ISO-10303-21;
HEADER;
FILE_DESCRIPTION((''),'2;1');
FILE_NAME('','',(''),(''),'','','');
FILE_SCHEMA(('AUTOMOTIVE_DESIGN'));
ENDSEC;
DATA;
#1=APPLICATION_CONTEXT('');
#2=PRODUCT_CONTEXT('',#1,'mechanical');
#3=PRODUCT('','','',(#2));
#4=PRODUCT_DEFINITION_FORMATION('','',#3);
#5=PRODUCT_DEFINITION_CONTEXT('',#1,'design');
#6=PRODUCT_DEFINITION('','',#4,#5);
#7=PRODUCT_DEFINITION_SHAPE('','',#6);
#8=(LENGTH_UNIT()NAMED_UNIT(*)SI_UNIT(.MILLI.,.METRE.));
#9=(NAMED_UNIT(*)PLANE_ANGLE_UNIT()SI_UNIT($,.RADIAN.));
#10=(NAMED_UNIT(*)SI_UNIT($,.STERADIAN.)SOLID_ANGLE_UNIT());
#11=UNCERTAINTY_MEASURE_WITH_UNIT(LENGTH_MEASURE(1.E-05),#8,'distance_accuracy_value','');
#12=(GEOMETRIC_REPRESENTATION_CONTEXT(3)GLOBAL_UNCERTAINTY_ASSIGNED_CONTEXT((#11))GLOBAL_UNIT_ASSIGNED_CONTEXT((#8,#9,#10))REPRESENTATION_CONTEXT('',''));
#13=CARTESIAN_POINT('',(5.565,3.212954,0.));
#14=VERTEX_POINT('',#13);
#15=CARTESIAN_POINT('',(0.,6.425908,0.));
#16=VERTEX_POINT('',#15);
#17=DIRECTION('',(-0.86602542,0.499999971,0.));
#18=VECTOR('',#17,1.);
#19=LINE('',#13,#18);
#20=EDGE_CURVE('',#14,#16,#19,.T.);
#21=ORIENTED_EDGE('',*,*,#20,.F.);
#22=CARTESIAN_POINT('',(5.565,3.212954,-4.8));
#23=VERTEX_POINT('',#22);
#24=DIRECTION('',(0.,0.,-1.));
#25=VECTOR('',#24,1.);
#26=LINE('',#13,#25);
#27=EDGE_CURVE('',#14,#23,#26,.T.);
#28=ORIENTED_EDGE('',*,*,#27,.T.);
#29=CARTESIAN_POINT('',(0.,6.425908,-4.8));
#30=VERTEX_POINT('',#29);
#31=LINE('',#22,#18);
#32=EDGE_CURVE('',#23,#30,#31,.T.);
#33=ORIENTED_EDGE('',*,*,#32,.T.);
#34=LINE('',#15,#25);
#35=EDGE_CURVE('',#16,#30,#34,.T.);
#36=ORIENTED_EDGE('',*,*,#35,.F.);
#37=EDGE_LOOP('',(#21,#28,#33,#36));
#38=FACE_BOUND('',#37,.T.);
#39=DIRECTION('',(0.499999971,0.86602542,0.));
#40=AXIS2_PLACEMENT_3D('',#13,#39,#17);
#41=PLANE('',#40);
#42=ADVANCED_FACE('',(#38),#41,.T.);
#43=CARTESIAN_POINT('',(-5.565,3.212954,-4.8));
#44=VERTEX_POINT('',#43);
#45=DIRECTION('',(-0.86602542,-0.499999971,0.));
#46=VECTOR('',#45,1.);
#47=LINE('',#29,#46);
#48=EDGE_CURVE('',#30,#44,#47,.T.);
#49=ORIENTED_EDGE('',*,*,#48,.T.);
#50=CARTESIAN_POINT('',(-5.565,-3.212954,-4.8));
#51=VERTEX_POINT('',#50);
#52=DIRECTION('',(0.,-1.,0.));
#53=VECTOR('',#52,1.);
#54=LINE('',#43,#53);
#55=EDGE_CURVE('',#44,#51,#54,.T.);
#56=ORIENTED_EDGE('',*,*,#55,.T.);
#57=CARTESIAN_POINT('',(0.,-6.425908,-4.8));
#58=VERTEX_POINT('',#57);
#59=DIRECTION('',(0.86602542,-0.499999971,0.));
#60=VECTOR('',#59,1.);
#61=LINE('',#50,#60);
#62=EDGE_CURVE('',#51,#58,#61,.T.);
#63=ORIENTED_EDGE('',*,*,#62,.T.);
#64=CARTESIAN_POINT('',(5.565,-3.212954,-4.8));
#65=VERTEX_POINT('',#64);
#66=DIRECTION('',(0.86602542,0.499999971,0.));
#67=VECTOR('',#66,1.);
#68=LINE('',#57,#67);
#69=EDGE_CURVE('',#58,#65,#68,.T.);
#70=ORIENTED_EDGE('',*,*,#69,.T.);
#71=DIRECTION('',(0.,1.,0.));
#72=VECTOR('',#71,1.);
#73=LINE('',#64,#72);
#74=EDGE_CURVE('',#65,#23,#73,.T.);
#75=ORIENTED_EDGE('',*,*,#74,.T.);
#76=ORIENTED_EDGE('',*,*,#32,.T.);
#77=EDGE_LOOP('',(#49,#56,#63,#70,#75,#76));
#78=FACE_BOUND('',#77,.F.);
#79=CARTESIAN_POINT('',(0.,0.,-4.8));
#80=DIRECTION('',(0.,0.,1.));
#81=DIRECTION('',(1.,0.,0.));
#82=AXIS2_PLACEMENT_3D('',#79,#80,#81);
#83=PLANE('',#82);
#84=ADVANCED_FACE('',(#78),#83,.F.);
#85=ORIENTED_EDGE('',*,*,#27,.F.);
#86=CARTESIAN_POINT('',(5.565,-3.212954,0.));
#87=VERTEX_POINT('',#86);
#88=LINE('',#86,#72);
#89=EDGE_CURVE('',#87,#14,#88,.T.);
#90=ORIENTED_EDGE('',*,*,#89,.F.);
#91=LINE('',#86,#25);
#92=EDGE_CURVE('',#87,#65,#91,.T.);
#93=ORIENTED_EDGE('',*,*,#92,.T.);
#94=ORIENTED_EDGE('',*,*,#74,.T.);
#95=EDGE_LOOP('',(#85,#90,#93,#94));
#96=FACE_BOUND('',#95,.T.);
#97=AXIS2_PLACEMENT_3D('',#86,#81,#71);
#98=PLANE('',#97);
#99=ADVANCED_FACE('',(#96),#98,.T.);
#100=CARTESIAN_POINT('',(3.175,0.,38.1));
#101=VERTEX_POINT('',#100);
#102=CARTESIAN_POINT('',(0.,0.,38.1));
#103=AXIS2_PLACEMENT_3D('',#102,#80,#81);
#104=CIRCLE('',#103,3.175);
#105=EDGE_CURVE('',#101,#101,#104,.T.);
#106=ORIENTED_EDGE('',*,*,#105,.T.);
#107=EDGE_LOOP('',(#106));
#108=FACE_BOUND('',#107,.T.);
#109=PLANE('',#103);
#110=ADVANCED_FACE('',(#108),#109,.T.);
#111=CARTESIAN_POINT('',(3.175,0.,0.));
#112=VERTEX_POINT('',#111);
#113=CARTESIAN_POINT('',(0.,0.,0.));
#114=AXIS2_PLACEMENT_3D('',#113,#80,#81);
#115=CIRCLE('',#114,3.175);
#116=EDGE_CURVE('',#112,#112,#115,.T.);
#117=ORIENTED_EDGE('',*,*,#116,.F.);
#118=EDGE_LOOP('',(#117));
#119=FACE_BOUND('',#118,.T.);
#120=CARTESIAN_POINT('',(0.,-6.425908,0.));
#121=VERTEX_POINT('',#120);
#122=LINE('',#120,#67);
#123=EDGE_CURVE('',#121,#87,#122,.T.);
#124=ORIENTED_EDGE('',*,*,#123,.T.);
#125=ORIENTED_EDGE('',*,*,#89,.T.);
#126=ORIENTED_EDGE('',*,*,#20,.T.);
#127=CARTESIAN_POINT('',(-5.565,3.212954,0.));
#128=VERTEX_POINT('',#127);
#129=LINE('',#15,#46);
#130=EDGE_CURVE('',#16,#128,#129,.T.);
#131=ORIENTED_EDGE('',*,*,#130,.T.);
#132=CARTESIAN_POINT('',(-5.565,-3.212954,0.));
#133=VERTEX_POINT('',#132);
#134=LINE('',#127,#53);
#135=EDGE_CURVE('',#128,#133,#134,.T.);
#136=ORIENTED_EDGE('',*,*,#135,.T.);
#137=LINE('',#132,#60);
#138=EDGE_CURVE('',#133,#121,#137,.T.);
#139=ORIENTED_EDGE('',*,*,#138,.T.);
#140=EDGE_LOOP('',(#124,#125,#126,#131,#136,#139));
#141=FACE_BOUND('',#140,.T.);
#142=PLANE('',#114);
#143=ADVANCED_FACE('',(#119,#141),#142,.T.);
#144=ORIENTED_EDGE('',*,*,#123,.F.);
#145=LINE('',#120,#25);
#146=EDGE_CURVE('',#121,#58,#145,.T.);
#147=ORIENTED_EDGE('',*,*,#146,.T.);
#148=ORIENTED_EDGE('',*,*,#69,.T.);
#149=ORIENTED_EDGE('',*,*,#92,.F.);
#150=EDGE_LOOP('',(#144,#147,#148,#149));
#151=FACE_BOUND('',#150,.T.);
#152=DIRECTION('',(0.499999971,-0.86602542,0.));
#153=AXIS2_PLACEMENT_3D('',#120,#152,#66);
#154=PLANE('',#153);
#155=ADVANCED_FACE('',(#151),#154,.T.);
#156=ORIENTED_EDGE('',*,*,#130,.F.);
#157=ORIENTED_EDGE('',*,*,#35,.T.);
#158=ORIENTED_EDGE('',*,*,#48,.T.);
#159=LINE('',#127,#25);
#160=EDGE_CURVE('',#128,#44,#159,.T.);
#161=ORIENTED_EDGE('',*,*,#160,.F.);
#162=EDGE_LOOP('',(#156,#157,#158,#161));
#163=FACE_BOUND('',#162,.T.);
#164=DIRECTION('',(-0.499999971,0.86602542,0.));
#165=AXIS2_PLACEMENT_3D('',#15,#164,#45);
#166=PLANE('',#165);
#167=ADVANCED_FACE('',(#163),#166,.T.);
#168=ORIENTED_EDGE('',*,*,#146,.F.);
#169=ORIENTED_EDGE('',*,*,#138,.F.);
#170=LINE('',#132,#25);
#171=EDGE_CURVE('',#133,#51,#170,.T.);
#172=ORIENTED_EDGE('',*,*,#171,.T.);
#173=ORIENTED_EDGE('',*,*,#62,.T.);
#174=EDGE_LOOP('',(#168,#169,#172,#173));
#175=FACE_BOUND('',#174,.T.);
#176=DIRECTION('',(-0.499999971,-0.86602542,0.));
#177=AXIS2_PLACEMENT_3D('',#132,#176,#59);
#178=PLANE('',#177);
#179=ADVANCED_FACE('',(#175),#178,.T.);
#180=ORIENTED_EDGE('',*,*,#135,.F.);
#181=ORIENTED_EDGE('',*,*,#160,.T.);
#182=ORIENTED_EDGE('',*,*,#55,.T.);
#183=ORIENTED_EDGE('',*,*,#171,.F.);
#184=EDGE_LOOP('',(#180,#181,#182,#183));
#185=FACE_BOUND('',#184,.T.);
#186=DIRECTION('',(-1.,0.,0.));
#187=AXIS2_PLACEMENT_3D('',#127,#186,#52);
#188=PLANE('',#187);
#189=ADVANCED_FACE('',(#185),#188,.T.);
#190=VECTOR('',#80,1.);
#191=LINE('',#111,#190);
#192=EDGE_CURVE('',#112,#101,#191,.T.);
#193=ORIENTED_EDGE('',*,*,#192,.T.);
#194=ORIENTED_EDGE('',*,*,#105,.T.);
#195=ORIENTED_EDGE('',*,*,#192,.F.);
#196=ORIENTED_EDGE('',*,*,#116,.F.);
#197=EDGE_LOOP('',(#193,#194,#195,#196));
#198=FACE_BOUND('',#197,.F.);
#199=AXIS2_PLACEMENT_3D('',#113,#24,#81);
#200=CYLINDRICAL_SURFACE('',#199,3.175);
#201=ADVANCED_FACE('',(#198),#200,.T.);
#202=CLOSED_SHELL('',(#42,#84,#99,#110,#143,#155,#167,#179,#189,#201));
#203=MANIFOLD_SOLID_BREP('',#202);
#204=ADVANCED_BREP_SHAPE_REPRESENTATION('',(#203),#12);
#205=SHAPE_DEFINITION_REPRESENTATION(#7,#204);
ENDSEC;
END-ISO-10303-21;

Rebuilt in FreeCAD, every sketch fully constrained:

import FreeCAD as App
import Part
import Sketcher
Q = App.Units.Quantity

doc = App.newDocument("Part")
body = doc.addObject("PartDesign::Body", "Body")

# Sketch on XY plane
sketch1 = body.newObject("Sketcher::SketchObject", "Sketch")
sketch1.AttachmentSupport = (doc.getObject("XY_Plane"), [""])
sketch1.MapMode = "FlatFace"
sketch1.addGeometry(Part.Circle(App.Vector(0, 0, 0), App.Vector(0, 0, 1), 3.2), False)
sketch1.addConstraint([
    Sketcher.Constraint("Coincident", 0, 3, -1, 1),
    Sketcher.Constraint("Diameter", 0, Q("0.25 in")),
])
pad1 = body.newObject("PartDesign::Pad", "Pad")
pad1.Profile = sketch1
pad1.Length = Q("1.5 in")

# Sketch on XY plane
sketch2 = body.newObject("Sketcher::SketchObject", "Sketch001")
sketch2.AttachmentSupport = (doc.getObject("XY_Plane"), [""])
sketch2.MapMode = "FlatFace"
sketch2.addGeometry([
    Part.LineSegment(App.Vector(0, 6, 0), App.Vector(-6, 3, 0)),  # 0
    Part.LineSegment(App.Vector(-6, 3, 0), App.Vector(-6, -3, 0)),  # 1
    Part.LineSegment(App.Vector(-6, -3, 0), App.Vector(0, -6, 0)),  # 2
    Part.LineSegment(App.Vector(0, -6, 0), App.Vector(6, -3, 0)),  # 3
    Part.LineSegment(App.Vector(6, -3, 0), App.Vector(6, 3, 0)),  # 4
    Part.LineSegment(App.Vector(6, 3, 0), App.Vector(0, 6, 0)),  # 5
], False)
sketch2.addConstraint([
    Sketcher.Constraint("Coincident", 0, 2, 1, 1),
    Sketcher.Constraint("Coincident", 1, 2, 2, 1),
    Sketcher.Constraint("Coincident", 2, 2, 3, 1),
    Sketcher.Constraint("Coincident", 3, 2, 4, 1),
    Sketcher.Constraint("Coincident", 4, 2, 5, 1),
    Sketcher.Constraint("Coincident", 5, 2, 0, 1),
    Sketcher.Constraint("Vertical", 1),
    Sketcher.Constraint("Vertical", 4),
    Sketcher.Constraint("Symmetric", 0, 2, 3, 2, -1, 1),
    Sketcher.Constraint("Symmetric", 2, 2, 5, 2, -1, 1),
    Sketcher.Constraint("PointOnObject", 2, 2, -2),
    Sketcher.Constraint("Parallel", 2, 5),
    Sketcher.Constraint("Horizontal", 1, 2, 3, 2),
    Sketcher.Constraint("Angle", 0, Q("-150.000002 deg")),
    Sketcher.Constraint("DistanceX", 0, 2, -1, 1, Q("5.565 mm")),
    Sketcher.Constraint("DistanceY", 1, 2, 1, 1, Q("6.425908 mm")),
])
pad2 = body.newObject("PartDesign::Pad", "Pad001")
pad2.Profile = sketch2
pad2.Length = 4.8
pad2.Reversed = True

doc.recompute()
